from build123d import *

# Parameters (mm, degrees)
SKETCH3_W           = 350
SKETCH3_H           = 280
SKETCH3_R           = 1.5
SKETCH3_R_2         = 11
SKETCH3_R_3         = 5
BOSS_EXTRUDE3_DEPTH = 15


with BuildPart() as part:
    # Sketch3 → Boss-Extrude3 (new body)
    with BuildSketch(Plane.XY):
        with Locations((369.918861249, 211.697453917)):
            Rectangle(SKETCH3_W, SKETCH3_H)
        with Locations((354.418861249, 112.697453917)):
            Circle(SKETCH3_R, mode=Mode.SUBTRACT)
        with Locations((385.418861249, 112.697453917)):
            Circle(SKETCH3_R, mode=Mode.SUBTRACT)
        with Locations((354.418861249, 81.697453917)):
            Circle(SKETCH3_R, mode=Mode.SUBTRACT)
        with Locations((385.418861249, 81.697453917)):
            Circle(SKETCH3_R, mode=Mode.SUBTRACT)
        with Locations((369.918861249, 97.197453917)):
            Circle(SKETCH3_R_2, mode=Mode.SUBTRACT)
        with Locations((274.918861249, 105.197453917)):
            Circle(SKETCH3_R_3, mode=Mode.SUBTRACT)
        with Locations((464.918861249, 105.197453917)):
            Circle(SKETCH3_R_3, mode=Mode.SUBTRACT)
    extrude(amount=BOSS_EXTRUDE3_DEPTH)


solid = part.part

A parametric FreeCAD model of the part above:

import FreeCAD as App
import Part
import Sketcher
Q = App.Units.Quantity

doc = App.newDocument("Part")
params = doc.addObject("Spreadsheet::Sheet", "Params")
for row, (alias, value) in enumerate([
    ("sketch1_diameter", "3 mm"),
    ("sketch1_diameter2", "10 mm"),
    ("sketch1_diameter3", "22 mm"),
    ("sketch1_width", "350 mm"),
    ("sketch1_height", "280 mm"),
    ("pad1_length", "15 mm"),
], start=1):
    params.set(f"A{row}", alias)
    params.set(f"B{row}", "=" + value)
    params.setAlias(f"B{row}", alias)

body = doc.addObject("PartDesign::Body", "Body")

# Sketch on XY plane
sketch1 = body.newObject("Sketcher::SketchObject", "Sketch")
sketch1.AttachmentSupport = (doc.getObject("XY_Plane"), [""])
sketch1.MapMode = "FlatFace"
sketch1.addGeometry([
    Part.LineSegment(App.Vector(194.9, 351.7, 0), App.Vector(194.9, 71.7, 0)),  # 0
    Part.LineSegment(App.Vector(194.9, 71.7, 0), App.Vector(544.9, 71.7, 0)),  # 1
    Part.LineSegment(App.Vector(544.9, 71.7, 0), App.Vector(544.9, 351.7, 0)),  # 2
    Part.LineSegment(App.Vector(544.9, 351.7, 0), App.Vector(194.9, 351.7, 0)),  # 3
    Part.Circle(App.Vector(354.4, 81.7, 0), App.Vector(0, 0, 1), 1.5),  # 4
    Part.Circle(App.Vector(385.4, 81.7, 0), App.Vector(0, 0, 1), 1.5),  # 5
    Part.Circle(App.Vector(274.9, 105.2, 0), App.Vector(0, 0, 1), 5),  # 6
    Part.Circle(App.Vector(354.4, 112.7, 0), App.Vector(0, 0, 1), 1.5),  # 7
    Part.Circle(App.Vector(369.9, 97.2, 0), App.Vector(0, 0, 1), 11),  # 8
    Part.Circle(App.Vector(464.9, 105.2, 0), App.Vector(0, 0, 1), 5),  # 9
    Part.Circle(App.Vector(385.4, 112.7, 0), App.Vector(0, 0, 1), 1.5),  # 10
], False)
sketch1.addConstraint([
    Sketcher.Constraint("Coincident", 0, 2, 1, 1),
    Sketcher.Constraint("Coincident", 1, 2, 2, 1),
    Sketcher.Constraint("Coincident", 2, 2, 3, 1),
    Sketcher.Constraint("Coincident", 3, 2, 0, 1),
    Sketcher.Constraint("Vertical", 0),
    Sketcher.Constraint("Horizontal", 1),
    Sketcher.Constraint("Vertical", 2),
    Sketcher.Constraint("Horizontal", 3),
    Sketcher.Constraint("Equal", 4, 5),
    Sketcher.Constraint("Equal", 5, 7),
    Sketcher.Constraint("Equal", 6, 9),
    Sketcher.Constraint("Equal", 7, 10),
    Sketcher.Constraint("Horizontal", 4, 3, 5, 3),
    Sketcher.Constraint("Horizontal", 6, 3, 9, 3),
    Sketcher.Constraint("Horizontal", 7, 3, 10, 3),
    Sketcher.Constraint("Vertical", 4, 3, 7, 3),
    Sketcher.Constraint("Vertical", 5, 3, 10, 3),
    Sketcher.Constraint("Diameter", 4, Q("3 mm")),
    Sketcher.Constraint("Diameter", 6, Q("10 mm")),
    Sketcher.Constraint("Diameter", 8, Q("22 mm")),
    Sketcher.Constraint("DistanceX", 1, 1, 1, 2, Q("350 mm")),
    Sketcher.Constraint("DistanceY", 0, 2, 0, 1, Q("280 mm")),
    Sketcher.Constraint("DistanceX", 4, 3, 5, 3, Q("31 mm")),
    Sketcher.Constraint("DistanceY", 4, 3, 7, 3, Q("31 mm")),
    Sketcher.Constraint("DistanceX", 6, 3, 8, 3, Q("95 mm")),
    Sketcher.Constraint("DistanceY", 8, 3, 6, 3, Q("8 mm")),
    Sketcher.Constraint("DistanceX", 8, 3, 9, 3, Q("95 mm")),
    Sketcher.Constraint("DistanceX", 0, 2, 6, 3, Q("80 mm")),
    Sketcher.Constraint("DistanceY", 0, 2, 4, 3, Q("10 mm")),
    Sketcher.Constraint("DistanceX", 6, 3, 4, 3, Q("79.5 mm")),
    Sketcher.Constraint("DistanceY", 4, 3, 6, 3, Q("23.5 mm")),
    Sketcher.Constraint("DistanceX", -1, 1, 4, 3, Q("354.418861 mm")),
    Sketcher.Constraint("DistanceY", -1, 1, 4, 3, Q("81.697454 mm")),
])
sketch1.setExpression("Constraints[17]", "Params.sketch1_diameter")
sketch1.setExpression("Constraints[18]", "Params.sketch1_diameter2")
sketch1.setExpression("Constraints[19]", "Params.sketch1_diameter3")
sketch1.setExpression("Constraints[20]", "Params.sketch1_width")
sketch1.setExpression("Constraints[21]", "Params.sketch1_height")
pad1 = body.newObject("PartDesign::Pad", "Pad")
pad1.Profile = sketch1
pad1.setExpression("Length", "Params.pad1_length")

doc.recompute()
